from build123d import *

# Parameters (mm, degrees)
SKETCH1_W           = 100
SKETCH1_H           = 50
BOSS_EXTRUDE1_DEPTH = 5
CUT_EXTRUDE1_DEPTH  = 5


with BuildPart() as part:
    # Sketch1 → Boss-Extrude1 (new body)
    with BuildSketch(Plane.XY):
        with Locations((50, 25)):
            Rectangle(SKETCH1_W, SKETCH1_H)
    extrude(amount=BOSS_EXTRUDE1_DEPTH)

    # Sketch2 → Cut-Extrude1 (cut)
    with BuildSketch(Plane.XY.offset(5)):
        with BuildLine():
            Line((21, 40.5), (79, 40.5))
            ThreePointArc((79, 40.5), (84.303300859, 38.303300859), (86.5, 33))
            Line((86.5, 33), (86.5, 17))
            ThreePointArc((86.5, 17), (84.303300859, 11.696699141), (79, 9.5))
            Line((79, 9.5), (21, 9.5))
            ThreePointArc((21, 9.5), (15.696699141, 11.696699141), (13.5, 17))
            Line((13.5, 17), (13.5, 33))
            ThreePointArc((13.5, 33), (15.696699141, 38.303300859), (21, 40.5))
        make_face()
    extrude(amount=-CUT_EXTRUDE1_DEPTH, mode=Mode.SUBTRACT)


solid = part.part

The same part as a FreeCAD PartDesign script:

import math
import FreeCAD as App
import Part
import Sketcher
Q = App.Units.Quantity

doc = App.newDocument("Part")
body = doc.addObject("PartDesign::Body", "Body")

# Sketch on XY plane
sketch1 = body.newObject("Sketcher::SketchObject", "Sketch")
sketch1.AttachmentSupport = (doc.getObject("XY_Plane"), [""])
sketch1.MapMode = "FlatFace"
sketch1.addGeometry(Part.LineSegment(App.Vector(0, 50, 0), App.Vector(0, 0, 0)), False)
sketch1.addGeometry(Part.LineSegment(App.Vector(0, 0, 0), App.Vector(100, 0, 0)), False)
sketch1.addGeometry(Part.LineSegment(App.Vector(100, 0, 0), App.Vector(100, 50, 0)), False)
sketch1.addGeometry(Part.LineSegment(App.Vector(100, 50, 0), App.Vector(0, 50, 0)), False)
sketch1.addConstraint(Sketcher.Constraint("Coincident", 0, 2, 1, 1))
sketch1.addConstraint(Sketcher.Constraint("Coincident", 1, 2, 2, 1))
sketch1.addConstraint(Sketcher.Constraint("Coincident", 2, 2, 3, 1))
sketch1.addConstraint(Sketcher.Constraint("Coincident", 3, 2, 0, 1))
sketch1.addConstraint(Sketcher.Constraint("Vertical", 0))
sketch1.addConstraint(Sketcher.Constraint("Horizontal", 1))
sketch1.addConstraint(Sketcher.Constraint("Vertical", 2))
sketch1.addConstraint(Sketcher.Constraint("Horizontal", 3))
sketch1.addConstraint(Sketcher.Constraint("Coincident", 0, 2, -1, 1))
sketch1.addConstraint(Sketcher.Constraint("DistanceX", 1, 1, 1, 2, Q("100 mm")))
sketch1.addConstraint(Sketcher.Constraint("DistanceY", 0, 2, 0, 1, Q("50 mm")))
pad1 = body.newObject("PartDesign::Pad", "Pad")
pad1.Profile = sketch1
pad1.Length = 5

# Sketch on XY plane
sketch2 = body.newObject("Sketcher::SketchObject", "Sketch001")
sketch2.AttachmentSupport = (doc.getObject("XY_Plane"), [""])
sketch2.MapMode = "FlatFace"
sketch2.AttachmentOffset = App.Placement(App.Vector(0, 0, 5), App.Rotation())
sketch2.addGeometry(Part.LineSegment(App.Vector(79, 40.5, 0), App.Vector(21, 40.5, 0)), False)
sketch2.addGeometry(Part.ArcOfCircle(Part.Circle(App.Vector(21, 33, 0), App.Vector(0, 0, 1), 7.5), math.radians(90), math.radians(180)), False)
sketch2.addGeometry(Part.LineSegment(App.Vector(13.5, 33, 0), App.Vector(13.5, 17, 0)), False)
sketch2.addGeometry(Part.ArcOfCircle(Part.Circle(App.Vector(21, 17, 0), App.Vector(0, 0, 1), 7.5), math.radians(180), math.radians(270)), False)
sketch2.addGeometry(Part.LineSegment(App.Vector(21, 9.5, 0), App.Vector(79, 9.5, 0)), False)
sketch2.addGeometry(Part.ArcOfCircle(Part.Circle(App.Vector(79, 17, 0), App.Vector(0, 0, 1), 7.5), math.radians(-90), math.radians(0)), False)
sketch2.addGeometry(Part.LineSegment(App.Vector(86.5, 17, 0), App.Vector(86.5, 33, 0)), False)
sketch2.addGeometry(Part.ArcOfCircle(Part.Circle(App.Vector(79, 33, 0), App.Vector(0, 0, 1), 7.5), math.radians(0), math.radians(90)), False)
sketch2.addConstraint(Sketcher.Constraint("Tangent", 0, 2, 1, 1))
sketch2.addConstraint(Sketcher.Constraint("Tangent", 1, 2, 2, 1))
sketch2.addConstraint(Sketcher.Constraint("Tangent", 2, 2, 3, 1))
sketch2.addConstraint(Sketcher.Constraint("Tangent", 3, 2, 4, 1))
sketch2.addConstraint(Sketcher.Constraint("Tangent", 4, 2, 5, 1))
sketch2.addConstraint(Sketcher.Constraint("Tangent", 5, 2, 6, 1))
sketch2.addConstraint(Sketcher.Constraint("Tangent", 6, 2, 7, 1))
sketch2.addConstraint(Sketcher.Constraint("Tangent", 7, 2, 0, 1))
sketch2.addConstraint(Sketcher.Constraint("Horizontal", 0))
sketch2.addConstraint(Sketcher.Constraint("Vertical", 2))
sketch2.addConstraint(Sketcher.Constraint("Horizontal", 4))
sketch2.addConstraint(Sketcher.Constraint("Vertical", 6))
sketch2.addConstraint(Sketcher.Constraint("Equal", 1, 3))
sketch2.addConstraint(Sketcher.Constraint("Equal", 3, 5))
sketch2.addConstraint(Sketcher.Constraint("Equal", 5, 7))
sketch2.addConstraint(Sketcher.Constraint("Radius", 1, Q("7.5 mm")))
sketch2.addConstraint(Sketcher.Constraint("DistanceX", 0, 2, 0, 1, Q("58 mm")))
sketch2.addConstraint(Sketcher.Constraint("DistanceY", 2, 2, 2, 1, Q("16 mm")))
sketch2.addConstraint(Sketcher.Constraint("DistanceX", -1, 1, 1, 3, Q("21 mm")))
sketch2.addConstraint(Sketcher.Constraint("DistanceY", -1, 1, 1, 3, Q("33 mm")))
pocket1 = body.newObject("PartDesign::Pocket", "Pocket")
pocket1.Profile = sketch2
pocket1.Length = 5

doc.recompute()
